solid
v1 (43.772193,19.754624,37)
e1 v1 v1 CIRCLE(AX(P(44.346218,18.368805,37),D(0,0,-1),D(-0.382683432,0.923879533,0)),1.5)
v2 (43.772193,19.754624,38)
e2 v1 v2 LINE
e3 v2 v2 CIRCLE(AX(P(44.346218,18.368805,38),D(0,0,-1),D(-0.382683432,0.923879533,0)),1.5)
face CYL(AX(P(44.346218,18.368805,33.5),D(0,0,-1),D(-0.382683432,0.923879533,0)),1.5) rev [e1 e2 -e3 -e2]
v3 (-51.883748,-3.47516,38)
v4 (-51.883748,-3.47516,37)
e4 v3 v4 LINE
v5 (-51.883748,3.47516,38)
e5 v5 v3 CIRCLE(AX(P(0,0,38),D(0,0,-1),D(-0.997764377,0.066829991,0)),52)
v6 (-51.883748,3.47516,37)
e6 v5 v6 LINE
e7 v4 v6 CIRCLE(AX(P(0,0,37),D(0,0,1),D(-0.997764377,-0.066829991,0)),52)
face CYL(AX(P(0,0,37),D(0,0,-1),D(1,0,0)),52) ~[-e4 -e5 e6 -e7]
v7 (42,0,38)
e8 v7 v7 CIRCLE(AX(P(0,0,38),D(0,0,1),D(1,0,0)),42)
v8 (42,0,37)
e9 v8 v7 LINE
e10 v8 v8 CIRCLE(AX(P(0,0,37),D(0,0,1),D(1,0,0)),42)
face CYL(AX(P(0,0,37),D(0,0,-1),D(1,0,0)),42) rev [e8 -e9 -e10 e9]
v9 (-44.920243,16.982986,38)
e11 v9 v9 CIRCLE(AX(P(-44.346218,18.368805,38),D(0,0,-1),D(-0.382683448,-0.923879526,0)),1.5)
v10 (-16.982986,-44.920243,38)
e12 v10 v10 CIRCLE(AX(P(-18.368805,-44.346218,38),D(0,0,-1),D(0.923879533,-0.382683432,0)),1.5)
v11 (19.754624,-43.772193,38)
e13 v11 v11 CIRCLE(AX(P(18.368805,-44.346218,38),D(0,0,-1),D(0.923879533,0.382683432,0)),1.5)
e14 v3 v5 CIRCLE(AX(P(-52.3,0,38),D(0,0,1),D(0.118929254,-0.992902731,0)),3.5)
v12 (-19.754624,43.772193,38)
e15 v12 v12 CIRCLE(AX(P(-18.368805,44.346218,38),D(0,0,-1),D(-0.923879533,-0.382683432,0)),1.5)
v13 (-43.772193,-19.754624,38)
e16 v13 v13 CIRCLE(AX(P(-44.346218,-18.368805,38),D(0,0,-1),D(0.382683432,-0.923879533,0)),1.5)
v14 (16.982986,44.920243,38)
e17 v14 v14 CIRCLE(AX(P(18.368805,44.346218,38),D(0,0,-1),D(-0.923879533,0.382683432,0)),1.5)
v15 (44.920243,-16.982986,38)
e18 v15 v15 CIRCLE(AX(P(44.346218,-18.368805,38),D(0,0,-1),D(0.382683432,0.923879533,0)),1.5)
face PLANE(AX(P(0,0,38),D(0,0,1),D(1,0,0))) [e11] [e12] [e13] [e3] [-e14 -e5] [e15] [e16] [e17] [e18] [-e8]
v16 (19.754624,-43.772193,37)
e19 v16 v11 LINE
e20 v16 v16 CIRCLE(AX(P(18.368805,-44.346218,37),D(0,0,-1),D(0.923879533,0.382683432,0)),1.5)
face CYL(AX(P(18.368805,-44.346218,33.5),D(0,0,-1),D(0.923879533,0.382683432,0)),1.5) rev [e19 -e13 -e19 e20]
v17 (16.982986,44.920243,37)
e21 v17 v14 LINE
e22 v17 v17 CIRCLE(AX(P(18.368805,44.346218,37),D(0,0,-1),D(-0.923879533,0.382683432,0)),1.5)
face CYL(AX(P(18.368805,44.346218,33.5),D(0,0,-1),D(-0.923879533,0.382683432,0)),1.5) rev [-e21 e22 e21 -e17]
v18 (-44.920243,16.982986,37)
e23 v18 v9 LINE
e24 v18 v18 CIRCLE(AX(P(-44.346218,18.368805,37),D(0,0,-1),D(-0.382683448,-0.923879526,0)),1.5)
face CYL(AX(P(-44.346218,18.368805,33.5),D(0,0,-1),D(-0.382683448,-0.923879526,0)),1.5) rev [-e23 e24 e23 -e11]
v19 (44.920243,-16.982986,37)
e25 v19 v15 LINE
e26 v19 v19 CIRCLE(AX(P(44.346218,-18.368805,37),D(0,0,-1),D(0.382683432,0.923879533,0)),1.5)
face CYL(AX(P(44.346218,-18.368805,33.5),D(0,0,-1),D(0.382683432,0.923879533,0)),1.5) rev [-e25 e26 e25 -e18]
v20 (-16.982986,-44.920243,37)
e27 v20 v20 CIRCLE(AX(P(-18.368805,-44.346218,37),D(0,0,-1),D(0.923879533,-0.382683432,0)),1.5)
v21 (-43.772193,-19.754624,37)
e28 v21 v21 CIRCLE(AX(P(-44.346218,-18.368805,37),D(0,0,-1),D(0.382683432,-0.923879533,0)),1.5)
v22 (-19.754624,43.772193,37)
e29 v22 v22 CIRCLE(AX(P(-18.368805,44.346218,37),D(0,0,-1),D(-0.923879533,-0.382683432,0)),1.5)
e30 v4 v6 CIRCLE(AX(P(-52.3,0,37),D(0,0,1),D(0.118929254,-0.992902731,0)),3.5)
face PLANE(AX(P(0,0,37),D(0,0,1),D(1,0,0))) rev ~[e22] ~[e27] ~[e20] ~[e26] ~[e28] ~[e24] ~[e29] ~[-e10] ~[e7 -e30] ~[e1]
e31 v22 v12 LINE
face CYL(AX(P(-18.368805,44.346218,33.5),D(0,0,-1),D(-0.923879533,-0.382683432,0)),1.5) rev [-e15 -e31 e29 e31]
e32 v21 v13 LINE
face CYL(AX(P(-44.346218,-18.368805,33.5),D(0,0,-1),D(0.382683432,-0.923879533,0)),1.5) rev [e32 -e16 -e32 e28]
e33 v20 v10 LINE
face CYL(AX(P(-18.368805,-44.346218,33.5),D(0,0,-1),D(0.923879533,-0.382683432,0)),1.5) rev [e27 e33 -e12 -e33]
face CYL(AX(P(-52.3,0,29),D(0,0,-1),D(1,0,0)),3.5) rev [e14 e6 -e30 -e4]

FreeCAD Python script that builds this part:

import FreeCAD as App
import Part
import Sketcher
from FreeCAD import Vector

doc = App.newDocument("Part")
params = doc.addObject("Spreadsheet::Sheet", "Params")
for row, (alias, value) in enumerate([
    ("sketch1_diameter", "7 mm"),
    ("pad1_length", "20 mm"),
    ("sketch2_diameter", "3 mm"),
    ("pad2_length", "10 mm"),
    ("sketch3_diameter", "3 mm"),
    ("pad3_length", "10 mm"),
    ("sketch4_diameter", "3 mm"),
    ("pad4_length", "10 mm"),
    ("sketch5_diameter", "3 mm"),
    ("pad5_length", "10 mm"),
    ("sketch6_diameter", "3 mm"),
    ("pad6_length", "10 mm"),
    ("sketch7_diameter", "3 mm"),
    ("pad7_length", "10 mm"),
    ("sketch8_diameter", "3 mm"),
    ("pad8_length", "10 mm"),
    ("sketch9_diameter", "3 mm"),
    ("pad9_length", "10 mm"),
    ("sketch10_diameter", "104 mm"),
    ("sketch10_diameter2", "84 mm"),
    ("pad10_length", "1 mm"),
], start=1):
    params.set(f"A{row}", alias)
    params.set(f"B{row}", "=" + value)
    params.setAlias(f"B{row}", alias)

body = doc.addObject("PartDesign::Body", "Body")

# Sketch on XY plane
sketch1 = body.newObject("Sketcher::SketchObject", "Sketch")
sketch1.AttachmentSupport = (doc.getObject("XY_Plane"), [""])
sketch1.MapMode = "FlatFace"
sketch1.AttachmentOffset = App.Placement(Vector(0, 0, 29), App.Rotation())
sketch1.addGeometry(Part.Circle(Vector(-52.3, 0, 0), Vector(0, 0, 1), 3.5), False)
sketch1.addConstraint(Sketcher.Constraint("PointOnObject", 0, 3, -1))
sketch1.addConstraint(Sketcher.Constraint("Diameter", 0, 7.0))
sketch1.addConstraint(Sketcher.Constraint("DistanceX", 0, 3, -1, 1, 52.3))
sketch1.setExpression("Constraints[1]", "Params.sketch1_diameter")
pad1 = body.newObject("PartDesign::Pad", "Pad")
pad1.Profile = sketch1
pad1.setExpression("Length", "Params.pad1_length")
body2 = doc.addObject("PartDesign::Body", "Body001")

# Sketch on XY plane
sketch2 = body2.newObject("Sketcher::SketchObject", "Sketch001")
sketch2.AttachmentSupport = (doc.getObject("XY_Plane001"), [""])
sketch2.MapMode = "FlatFace"
sketch2.addGeometry(Part.Circle(Vector(0, 0, 0), Vector(0, 0, 1), 1.5), False)
sketch2.addConstraint(Sketcher.Constraint("Coincident", 0, 3, -1, 1))
sketch2.addConstraint(Sketcher.Constraint("Diameter", 0, 3.0))
sketch2.setExpression("Constraints[1]", "Params.sketch2_diameter")
pad2 = body2.newObject("PartDesign::Pad", "Pad001")
pad2.Profile = sketch2
pad2.setExpression("Length", "Params.pad2_length")
body3 = doc.addObject("PartDesign::Body", "Body002")
doc.recompute()

body2.Placement = App.Placement(Vector(44.346218, -18.368805, 35.5), App.Rotation(Vector(0, 0, 1), 67.5))
boolean = body3.newObject("PartDesign::Boolean", "Boolean")
boolean.Type = "Fuse"
boolean.addObjects([body2])
body4 = doc.addObject("PartDesign::Body", "Body003")

# Sketch on XY plane
sketch3 = body4.newObject("Sketcher::SketchObject", "Sketch002")
sketch3.AttachmentSupport = (doc.getObject("XY_Plane003"), [""])
sketch3.MapMode = "FlatFace"
sketch3.addGeometry(Part.Circle(Vector(0, 0, 0), Vector(0, 0, 1), 1.5), False)
sketch3.addConstraint(Sketcher.Constraint("Coincident", 0, 3, -1, 1))
sketch3.addConstraint(Sketcher.Constraint("Diameter", 0, 3.0))
sketch3.setExpression("Constraints[1]", "Params.sketch3_diameter")
pad3 = body4.newObject("PartDesign::Pad", "Pad002")
pad3.Profile = sketch3
pad3.setExpression("Length", "Params.pad3_length")
body5 = doc.addObject("PartDesign::Body", "Body004")
doc.recompute()

body4.Placement = App.Placement(Vector(44.346218, 18.368805, 35.5), App.Rotation(Vector(0, 0, 1), 112.5))
boolean2 = body5.newObject("PartDesign::Boolean", "Boolean001")
boolean2.Type = "Fuse"
boolean2.addObjects([body4])
body6 = doc.addObject("PartDesign::Body", "Body005")

# Sketch on XY plane
sketch4 = body6.newObject("Sketcher::SketchObject", "Sketch003")
sketch4.AttachmentSupport = (doc.getObject("XY_Plane005"), [""])
sketch4.MapMode = "FlatFace"
sketch4.addGeometry(Part.Circle(Vector(0, 0, 0), Vector(0, 0, 1), 1.5), False)
sketch4.addConstraint(Sketcher.Constraint("Coincident", 0, 3, -1, 1))
sketch4.addConstraint(Sketcher.Constraint("Diameter", 0, 3.0))
sketch4.setExpression("Constraints[1]", "Params.sketch4_diameter")
pad4 = body6.newObject("PartDesign::Pad", "Pad003")
pad4.Profile = sketch4
pad4.setExpression("Length", "Params.pad4_length")
body7 = doc.addObject("PartDesign::Body", "Body006")
doc.recompute()

body6.Placement = App.Placement(Vector(18.368805, 44.346218, 35.5), App.Rotation(Vector(0, 0, 1), 157.5))
boolean3 = body7.newObject("PartDesign::Boolean", "Boolean002")
boolean3.Type = "Fuse"
boolean3.addObjects([body6])
body8 = doc.addObject("PartDesign::Body", "Body007")

# Sketch on XY plane
sketch5 = body8.newObject("Sketcher::SketchObject", "Sketch004")
sketch5.AttachmentSupport = (doc.getObject("XY_Plane007"), [""])
sketch5.MapMode = "FlatFace"
sketch5.addGeometry(Part.Circle(Vector(0, 0, 0), Vector(0, 0, 1), 1.5), False)
sketch5.addConstraint(Sketcher.Constraint("Coincident", 0, 3, -1, 1))
sketch5.addConstraint(Sketcher.Constraint("Diameter", 0, 3.0))
sketch5.setExpression("Constraints[1]", "Params.sketch5_diameter")
pad5 = body8.newObject("PartDesign::Pad", "Pad004")
pad5.Profile = sketch5
pad5.setExpression("Length", "Params.pad5_length")
body9 = doc.addObject("PartDesign::Body", "Body008")
doc.recompute()

body8.Placement = App.Placement(Vector(-18.368805, 44.346218, 35.5), App.Rotation(Vector(0, 0, 1), 202.5))
boolean4 = body9.newObject("PartDesign::Boolean", "Boolean003")
boolean4.Type = "Fuse"
boolean4.addObjects([body8])
body10 = doc.addObject("PartDesign::Body", "Body009")

# Sketch on XY plane
sketch6 = body10.newObject("Sketcher::SketchObject", "Sketch005")
sketch6.AttachmentSupport = (doc.getObject("XY_Plane009"), [""])
sketch6.MapMode = "FlatFace"
sketch6.addGeometry(Part.Circle(Vector(0, 0, 0), Vector(0, 0, 1), 1.5), False)
sketch6.addConstraint(Sketcher.Constraint("Coincident", 0, 3, -1, 1))
sketch6.addConstraint(Sketcher.Constraint("Diameter", 0, 3.0))
sketch6.setExpression("Constraints[1]", "Params.sketch6_diameter")
pad6 = body10.newObject("PartDesign::Pad", "Pad005")
pad6.Profile = sketch6
pad6.setExpression("Length", "Params.pad6_length")
body11 = doc.addObject("PartDesign::Body", "Body010")
doc.recompute()

body10.Placement = App.Placement(Vector(-44.346218, 18.368805, 35.5), App.Rotation(Vector(0, 0, -1), 112.500001))
boolean5 = body11.newObject("PartDesign::Boolean", "Boolean004")
boolean5.Type = "Fuse"
boolean5.addObjects([body10])
body12 = doc.addObject("PartDesign::Body", "Body011")

# Sketch on XY plane
sketch7 = body12.newObject("Sketcher::SketchObject", "Sketch006")
sketch7.AttachmentSupport = (doc.getObject("XY_Plane011"), [""])
sketch7.MapMode = "FlatFace"
sketch7.addGeometry(Part.Circle(Vector(0, 0, 0), Vector(0, 0, 1), 1.5), False)
sketch7.addConstraint(Sketcher.Constraint("Coincident", 0, 3, -1, 1))
sketch7.addConstraint(Sketcher.Constraint("Diameter", 0, 3.0))
sketch7.setExpression("Constraints[1]", "Params.sketch7_diameter")
pad7 = body12.newObject("PartDesign::Pad", "Pad006")
pad7.Profile = sketch7
pad7.setExpression("Length", "Params.pad7_length")
body13 = doc.addObject("PartDesign::Body", "Body012")
doc.recompute()

body12.Placement = App.Placement(Vector(-44.346218, -18.368805, 35.5), App.Rotation(Vector(0, 0, -1), 67.5))
boolean6 = body13.newObject("PartDesign::Boolean", "Boolean005")
boolean6.Type = "Fuse"
boolean6.addObjects([body12])
body14 = doc.addObject("PartDesign::Body", "Body013")

# Sketch on XY plane
sketch8 = body14.newObject("Sketcher::SketchObject", "Sketch007")
sketch8.AttachmentSupport = (doc.getObject("XY_Plane013"), [""])
sketch8.MapMode = "FlatFace"
sketch8.addGeometry(Part.Circle(Vector(0, 0, 0), Vector(0, 0, 1), 1.5), False)
sketch8.addConstraint(Sketcher.Constraint("Coincident", 0, 3, -1, 1))
sketch8.addConstraint(Sketcher.Constraint("Diameter", 0, 3.0))
sketch8.setExpression("Constraints[1]", "Params.sketch8_diameter")
pad8 = body14.newObject("PartDesign::Pad", "Pad007")
pad8.Profile = sketch8
pad8.setExpression("Length", "Params.pad8_length")
body15 = doc.addObject("PartDesign::Body", "Body014")
doc.recompute()

body14.Placement = App.Placement(Vector(-18.368805, -44.346218, 35.5), App.Rotation(Vector(0, 0, -1), 22.5))
boolean7 = body15.newObject("PartDesign::Boolean", "Boolean006")
boolean7.Type = "Fuse"
boolean7.addObjects([body14])
body16 = doc.addObject("PartDesign::Body", "Body015")

# Sketch on XY plane
sketch9 = body16.newObject("Sketcher::SketchObject", "Sketch008")
sketch9.AttachmentSupport = (doc.getObject("XY_Plane015"), [""])
sketch9.MapMode = "FlatFace"
sketch9.addGeometry(Part.Circle(Vector(0, 0, 0), Vector(0, 0, 1), 1.5), False)
sketch9.addConstraint(Sketcher.Constraint("Coincident", 0, 3, -1, 1))
sketch9.addConstraint(Sketcher.Constraint("Diameter", 0, 3.0))
sketch9.setExpression("Constraints[1]", "Params.sketch9_diameter")
pad9 = body16.newObject("PartDesign::Pad", "Pad008")
pad9.Profile = sketch9
pad9.setExpression("Length", "Params.pad9_length")
body17 = doc.addObject("PartDesign::Body", "Body016")
body17.AllowCompound = True
doc.recompute()

body16.Placement = App.Placement(Vector(18.368805, -44.346218, 35.5), App.Rotation(Vector(0, 0, 1), 22.5))
boolean8 = body17.newObject("PartDesign::Boolean", "Boolean007")
boolean8.Type = "Fuse"
boolean8.addObjects([body16])
doc.recompute()

boolean9 = body17.newObject("PartDesign::Boolean", "Boolean008")
boolean9.Type = "Fuse"
boolean9.addObjects([body3])
doc.recompute()

boolean10 = body17.newObject("PartDesign::Boolean", "Boolean009")
boolean10.Type = "Fuse"
boolean10.addObjects([body5])
doc.recompute()

boolean11 = body17.newObject("PartDesign::Boolean", "Boolean010")
boolean11.Type = "Fuse"
boolean11.addObjects([body7])
doc.recompute()

boolean12 = body17.newObject("PartDesign::Boolean", "Boolean011")
boolean12.Type = "Fuse"
boolean12.addObjects([body9])
doc.recompute()

boolean13 = body17.newObject("PartDesign::Boolean", "Boolean012")
boolean13.Type = "Fuse"
boolean13.addObjects([body11])
doc.recompute()

boolean14 = body17.newObject("PartDesign::Boolean", "Boolean013")
boolean14.Type = "Fuse"
boolean14.addObjects([body13])
doc.recompute()

boolean15 = body17.newObject("PartDesign::Boolean", "Boolean014")
boolean15.Type = "Fuse"
boolean15.addObjects([body15])
body18 = doc.addObject("PartDesign::Body", "Body017")
body18.AllowCompound = True
doc.recompute()

body17.Placement = App.Placement(Vector(0, 0, -2), App.Rotation(Vector(0, 0, 1), 0))
boolean16 = body18.newObject("PartDesign::Boolean", "Boolean015")
boolean16.Type = "Fuse"
boolean16.addObjects([body17])
body19 = doc.addObject("PartDesign::Body", "Body018")

# Sketch on XY plane
sketch10 = body19.newObject("Sketcher::SketchObject", "Sketch009")
sketch10.AttachmentSupport = (doc.getObject("XY_Plane018"), [""])
sketch10.MapMode = "FlatFace"
sketch10.AttachmentOffset = App.Placement(Vector(0, 0, 37), App.Rotation())
sketch10.addGeometry(Part.Circle(Vector(0, 0, 0), Vector(0, 0, 1), 52), False)
sketch10.addGeometry(Part.Circle(Vector(0, 0, 0), Vector(0, 0, 1), 42), False)
sketch10.addConstraint(Sketcher.Constraint("Coincident", 0, 3, -1, 1))
sketch10.addConstraint(Sketcher.Constraint("Coincident", 1, 3, -1, 1))
sketch10.addConstraint(Sketcher.Constraint("Diameter", 0, 104.0))
sketch10.addConstraint(Sketcher.Constraint("Diameter", 1, 84.0))
sketch10.setExpression("Constraints[2]", "Params.sketch10_diameter")
sketch10.setExpression("Constraints[3]", "Params.sketch10_diameter2")
pad10 = body19.newObject("PartDesign::Pad", "Pad009")
pad10.Profile = sketch10
pad10.setExpression("Length", "Params.pad10_length")
doc.recompute()

boolean17 = body19.newObject("PartDesign::Boolean", "Boolean016")
boolean17.Type = "Cut"
boolean17.addObjects([body18])
doc.recompute()

boolean18 = body19.newObject("PartDesign::Boolean", "Boolean017")
boolean18.Type = "Cut"
boolean18.addObjects([body])

doc.recompute()
